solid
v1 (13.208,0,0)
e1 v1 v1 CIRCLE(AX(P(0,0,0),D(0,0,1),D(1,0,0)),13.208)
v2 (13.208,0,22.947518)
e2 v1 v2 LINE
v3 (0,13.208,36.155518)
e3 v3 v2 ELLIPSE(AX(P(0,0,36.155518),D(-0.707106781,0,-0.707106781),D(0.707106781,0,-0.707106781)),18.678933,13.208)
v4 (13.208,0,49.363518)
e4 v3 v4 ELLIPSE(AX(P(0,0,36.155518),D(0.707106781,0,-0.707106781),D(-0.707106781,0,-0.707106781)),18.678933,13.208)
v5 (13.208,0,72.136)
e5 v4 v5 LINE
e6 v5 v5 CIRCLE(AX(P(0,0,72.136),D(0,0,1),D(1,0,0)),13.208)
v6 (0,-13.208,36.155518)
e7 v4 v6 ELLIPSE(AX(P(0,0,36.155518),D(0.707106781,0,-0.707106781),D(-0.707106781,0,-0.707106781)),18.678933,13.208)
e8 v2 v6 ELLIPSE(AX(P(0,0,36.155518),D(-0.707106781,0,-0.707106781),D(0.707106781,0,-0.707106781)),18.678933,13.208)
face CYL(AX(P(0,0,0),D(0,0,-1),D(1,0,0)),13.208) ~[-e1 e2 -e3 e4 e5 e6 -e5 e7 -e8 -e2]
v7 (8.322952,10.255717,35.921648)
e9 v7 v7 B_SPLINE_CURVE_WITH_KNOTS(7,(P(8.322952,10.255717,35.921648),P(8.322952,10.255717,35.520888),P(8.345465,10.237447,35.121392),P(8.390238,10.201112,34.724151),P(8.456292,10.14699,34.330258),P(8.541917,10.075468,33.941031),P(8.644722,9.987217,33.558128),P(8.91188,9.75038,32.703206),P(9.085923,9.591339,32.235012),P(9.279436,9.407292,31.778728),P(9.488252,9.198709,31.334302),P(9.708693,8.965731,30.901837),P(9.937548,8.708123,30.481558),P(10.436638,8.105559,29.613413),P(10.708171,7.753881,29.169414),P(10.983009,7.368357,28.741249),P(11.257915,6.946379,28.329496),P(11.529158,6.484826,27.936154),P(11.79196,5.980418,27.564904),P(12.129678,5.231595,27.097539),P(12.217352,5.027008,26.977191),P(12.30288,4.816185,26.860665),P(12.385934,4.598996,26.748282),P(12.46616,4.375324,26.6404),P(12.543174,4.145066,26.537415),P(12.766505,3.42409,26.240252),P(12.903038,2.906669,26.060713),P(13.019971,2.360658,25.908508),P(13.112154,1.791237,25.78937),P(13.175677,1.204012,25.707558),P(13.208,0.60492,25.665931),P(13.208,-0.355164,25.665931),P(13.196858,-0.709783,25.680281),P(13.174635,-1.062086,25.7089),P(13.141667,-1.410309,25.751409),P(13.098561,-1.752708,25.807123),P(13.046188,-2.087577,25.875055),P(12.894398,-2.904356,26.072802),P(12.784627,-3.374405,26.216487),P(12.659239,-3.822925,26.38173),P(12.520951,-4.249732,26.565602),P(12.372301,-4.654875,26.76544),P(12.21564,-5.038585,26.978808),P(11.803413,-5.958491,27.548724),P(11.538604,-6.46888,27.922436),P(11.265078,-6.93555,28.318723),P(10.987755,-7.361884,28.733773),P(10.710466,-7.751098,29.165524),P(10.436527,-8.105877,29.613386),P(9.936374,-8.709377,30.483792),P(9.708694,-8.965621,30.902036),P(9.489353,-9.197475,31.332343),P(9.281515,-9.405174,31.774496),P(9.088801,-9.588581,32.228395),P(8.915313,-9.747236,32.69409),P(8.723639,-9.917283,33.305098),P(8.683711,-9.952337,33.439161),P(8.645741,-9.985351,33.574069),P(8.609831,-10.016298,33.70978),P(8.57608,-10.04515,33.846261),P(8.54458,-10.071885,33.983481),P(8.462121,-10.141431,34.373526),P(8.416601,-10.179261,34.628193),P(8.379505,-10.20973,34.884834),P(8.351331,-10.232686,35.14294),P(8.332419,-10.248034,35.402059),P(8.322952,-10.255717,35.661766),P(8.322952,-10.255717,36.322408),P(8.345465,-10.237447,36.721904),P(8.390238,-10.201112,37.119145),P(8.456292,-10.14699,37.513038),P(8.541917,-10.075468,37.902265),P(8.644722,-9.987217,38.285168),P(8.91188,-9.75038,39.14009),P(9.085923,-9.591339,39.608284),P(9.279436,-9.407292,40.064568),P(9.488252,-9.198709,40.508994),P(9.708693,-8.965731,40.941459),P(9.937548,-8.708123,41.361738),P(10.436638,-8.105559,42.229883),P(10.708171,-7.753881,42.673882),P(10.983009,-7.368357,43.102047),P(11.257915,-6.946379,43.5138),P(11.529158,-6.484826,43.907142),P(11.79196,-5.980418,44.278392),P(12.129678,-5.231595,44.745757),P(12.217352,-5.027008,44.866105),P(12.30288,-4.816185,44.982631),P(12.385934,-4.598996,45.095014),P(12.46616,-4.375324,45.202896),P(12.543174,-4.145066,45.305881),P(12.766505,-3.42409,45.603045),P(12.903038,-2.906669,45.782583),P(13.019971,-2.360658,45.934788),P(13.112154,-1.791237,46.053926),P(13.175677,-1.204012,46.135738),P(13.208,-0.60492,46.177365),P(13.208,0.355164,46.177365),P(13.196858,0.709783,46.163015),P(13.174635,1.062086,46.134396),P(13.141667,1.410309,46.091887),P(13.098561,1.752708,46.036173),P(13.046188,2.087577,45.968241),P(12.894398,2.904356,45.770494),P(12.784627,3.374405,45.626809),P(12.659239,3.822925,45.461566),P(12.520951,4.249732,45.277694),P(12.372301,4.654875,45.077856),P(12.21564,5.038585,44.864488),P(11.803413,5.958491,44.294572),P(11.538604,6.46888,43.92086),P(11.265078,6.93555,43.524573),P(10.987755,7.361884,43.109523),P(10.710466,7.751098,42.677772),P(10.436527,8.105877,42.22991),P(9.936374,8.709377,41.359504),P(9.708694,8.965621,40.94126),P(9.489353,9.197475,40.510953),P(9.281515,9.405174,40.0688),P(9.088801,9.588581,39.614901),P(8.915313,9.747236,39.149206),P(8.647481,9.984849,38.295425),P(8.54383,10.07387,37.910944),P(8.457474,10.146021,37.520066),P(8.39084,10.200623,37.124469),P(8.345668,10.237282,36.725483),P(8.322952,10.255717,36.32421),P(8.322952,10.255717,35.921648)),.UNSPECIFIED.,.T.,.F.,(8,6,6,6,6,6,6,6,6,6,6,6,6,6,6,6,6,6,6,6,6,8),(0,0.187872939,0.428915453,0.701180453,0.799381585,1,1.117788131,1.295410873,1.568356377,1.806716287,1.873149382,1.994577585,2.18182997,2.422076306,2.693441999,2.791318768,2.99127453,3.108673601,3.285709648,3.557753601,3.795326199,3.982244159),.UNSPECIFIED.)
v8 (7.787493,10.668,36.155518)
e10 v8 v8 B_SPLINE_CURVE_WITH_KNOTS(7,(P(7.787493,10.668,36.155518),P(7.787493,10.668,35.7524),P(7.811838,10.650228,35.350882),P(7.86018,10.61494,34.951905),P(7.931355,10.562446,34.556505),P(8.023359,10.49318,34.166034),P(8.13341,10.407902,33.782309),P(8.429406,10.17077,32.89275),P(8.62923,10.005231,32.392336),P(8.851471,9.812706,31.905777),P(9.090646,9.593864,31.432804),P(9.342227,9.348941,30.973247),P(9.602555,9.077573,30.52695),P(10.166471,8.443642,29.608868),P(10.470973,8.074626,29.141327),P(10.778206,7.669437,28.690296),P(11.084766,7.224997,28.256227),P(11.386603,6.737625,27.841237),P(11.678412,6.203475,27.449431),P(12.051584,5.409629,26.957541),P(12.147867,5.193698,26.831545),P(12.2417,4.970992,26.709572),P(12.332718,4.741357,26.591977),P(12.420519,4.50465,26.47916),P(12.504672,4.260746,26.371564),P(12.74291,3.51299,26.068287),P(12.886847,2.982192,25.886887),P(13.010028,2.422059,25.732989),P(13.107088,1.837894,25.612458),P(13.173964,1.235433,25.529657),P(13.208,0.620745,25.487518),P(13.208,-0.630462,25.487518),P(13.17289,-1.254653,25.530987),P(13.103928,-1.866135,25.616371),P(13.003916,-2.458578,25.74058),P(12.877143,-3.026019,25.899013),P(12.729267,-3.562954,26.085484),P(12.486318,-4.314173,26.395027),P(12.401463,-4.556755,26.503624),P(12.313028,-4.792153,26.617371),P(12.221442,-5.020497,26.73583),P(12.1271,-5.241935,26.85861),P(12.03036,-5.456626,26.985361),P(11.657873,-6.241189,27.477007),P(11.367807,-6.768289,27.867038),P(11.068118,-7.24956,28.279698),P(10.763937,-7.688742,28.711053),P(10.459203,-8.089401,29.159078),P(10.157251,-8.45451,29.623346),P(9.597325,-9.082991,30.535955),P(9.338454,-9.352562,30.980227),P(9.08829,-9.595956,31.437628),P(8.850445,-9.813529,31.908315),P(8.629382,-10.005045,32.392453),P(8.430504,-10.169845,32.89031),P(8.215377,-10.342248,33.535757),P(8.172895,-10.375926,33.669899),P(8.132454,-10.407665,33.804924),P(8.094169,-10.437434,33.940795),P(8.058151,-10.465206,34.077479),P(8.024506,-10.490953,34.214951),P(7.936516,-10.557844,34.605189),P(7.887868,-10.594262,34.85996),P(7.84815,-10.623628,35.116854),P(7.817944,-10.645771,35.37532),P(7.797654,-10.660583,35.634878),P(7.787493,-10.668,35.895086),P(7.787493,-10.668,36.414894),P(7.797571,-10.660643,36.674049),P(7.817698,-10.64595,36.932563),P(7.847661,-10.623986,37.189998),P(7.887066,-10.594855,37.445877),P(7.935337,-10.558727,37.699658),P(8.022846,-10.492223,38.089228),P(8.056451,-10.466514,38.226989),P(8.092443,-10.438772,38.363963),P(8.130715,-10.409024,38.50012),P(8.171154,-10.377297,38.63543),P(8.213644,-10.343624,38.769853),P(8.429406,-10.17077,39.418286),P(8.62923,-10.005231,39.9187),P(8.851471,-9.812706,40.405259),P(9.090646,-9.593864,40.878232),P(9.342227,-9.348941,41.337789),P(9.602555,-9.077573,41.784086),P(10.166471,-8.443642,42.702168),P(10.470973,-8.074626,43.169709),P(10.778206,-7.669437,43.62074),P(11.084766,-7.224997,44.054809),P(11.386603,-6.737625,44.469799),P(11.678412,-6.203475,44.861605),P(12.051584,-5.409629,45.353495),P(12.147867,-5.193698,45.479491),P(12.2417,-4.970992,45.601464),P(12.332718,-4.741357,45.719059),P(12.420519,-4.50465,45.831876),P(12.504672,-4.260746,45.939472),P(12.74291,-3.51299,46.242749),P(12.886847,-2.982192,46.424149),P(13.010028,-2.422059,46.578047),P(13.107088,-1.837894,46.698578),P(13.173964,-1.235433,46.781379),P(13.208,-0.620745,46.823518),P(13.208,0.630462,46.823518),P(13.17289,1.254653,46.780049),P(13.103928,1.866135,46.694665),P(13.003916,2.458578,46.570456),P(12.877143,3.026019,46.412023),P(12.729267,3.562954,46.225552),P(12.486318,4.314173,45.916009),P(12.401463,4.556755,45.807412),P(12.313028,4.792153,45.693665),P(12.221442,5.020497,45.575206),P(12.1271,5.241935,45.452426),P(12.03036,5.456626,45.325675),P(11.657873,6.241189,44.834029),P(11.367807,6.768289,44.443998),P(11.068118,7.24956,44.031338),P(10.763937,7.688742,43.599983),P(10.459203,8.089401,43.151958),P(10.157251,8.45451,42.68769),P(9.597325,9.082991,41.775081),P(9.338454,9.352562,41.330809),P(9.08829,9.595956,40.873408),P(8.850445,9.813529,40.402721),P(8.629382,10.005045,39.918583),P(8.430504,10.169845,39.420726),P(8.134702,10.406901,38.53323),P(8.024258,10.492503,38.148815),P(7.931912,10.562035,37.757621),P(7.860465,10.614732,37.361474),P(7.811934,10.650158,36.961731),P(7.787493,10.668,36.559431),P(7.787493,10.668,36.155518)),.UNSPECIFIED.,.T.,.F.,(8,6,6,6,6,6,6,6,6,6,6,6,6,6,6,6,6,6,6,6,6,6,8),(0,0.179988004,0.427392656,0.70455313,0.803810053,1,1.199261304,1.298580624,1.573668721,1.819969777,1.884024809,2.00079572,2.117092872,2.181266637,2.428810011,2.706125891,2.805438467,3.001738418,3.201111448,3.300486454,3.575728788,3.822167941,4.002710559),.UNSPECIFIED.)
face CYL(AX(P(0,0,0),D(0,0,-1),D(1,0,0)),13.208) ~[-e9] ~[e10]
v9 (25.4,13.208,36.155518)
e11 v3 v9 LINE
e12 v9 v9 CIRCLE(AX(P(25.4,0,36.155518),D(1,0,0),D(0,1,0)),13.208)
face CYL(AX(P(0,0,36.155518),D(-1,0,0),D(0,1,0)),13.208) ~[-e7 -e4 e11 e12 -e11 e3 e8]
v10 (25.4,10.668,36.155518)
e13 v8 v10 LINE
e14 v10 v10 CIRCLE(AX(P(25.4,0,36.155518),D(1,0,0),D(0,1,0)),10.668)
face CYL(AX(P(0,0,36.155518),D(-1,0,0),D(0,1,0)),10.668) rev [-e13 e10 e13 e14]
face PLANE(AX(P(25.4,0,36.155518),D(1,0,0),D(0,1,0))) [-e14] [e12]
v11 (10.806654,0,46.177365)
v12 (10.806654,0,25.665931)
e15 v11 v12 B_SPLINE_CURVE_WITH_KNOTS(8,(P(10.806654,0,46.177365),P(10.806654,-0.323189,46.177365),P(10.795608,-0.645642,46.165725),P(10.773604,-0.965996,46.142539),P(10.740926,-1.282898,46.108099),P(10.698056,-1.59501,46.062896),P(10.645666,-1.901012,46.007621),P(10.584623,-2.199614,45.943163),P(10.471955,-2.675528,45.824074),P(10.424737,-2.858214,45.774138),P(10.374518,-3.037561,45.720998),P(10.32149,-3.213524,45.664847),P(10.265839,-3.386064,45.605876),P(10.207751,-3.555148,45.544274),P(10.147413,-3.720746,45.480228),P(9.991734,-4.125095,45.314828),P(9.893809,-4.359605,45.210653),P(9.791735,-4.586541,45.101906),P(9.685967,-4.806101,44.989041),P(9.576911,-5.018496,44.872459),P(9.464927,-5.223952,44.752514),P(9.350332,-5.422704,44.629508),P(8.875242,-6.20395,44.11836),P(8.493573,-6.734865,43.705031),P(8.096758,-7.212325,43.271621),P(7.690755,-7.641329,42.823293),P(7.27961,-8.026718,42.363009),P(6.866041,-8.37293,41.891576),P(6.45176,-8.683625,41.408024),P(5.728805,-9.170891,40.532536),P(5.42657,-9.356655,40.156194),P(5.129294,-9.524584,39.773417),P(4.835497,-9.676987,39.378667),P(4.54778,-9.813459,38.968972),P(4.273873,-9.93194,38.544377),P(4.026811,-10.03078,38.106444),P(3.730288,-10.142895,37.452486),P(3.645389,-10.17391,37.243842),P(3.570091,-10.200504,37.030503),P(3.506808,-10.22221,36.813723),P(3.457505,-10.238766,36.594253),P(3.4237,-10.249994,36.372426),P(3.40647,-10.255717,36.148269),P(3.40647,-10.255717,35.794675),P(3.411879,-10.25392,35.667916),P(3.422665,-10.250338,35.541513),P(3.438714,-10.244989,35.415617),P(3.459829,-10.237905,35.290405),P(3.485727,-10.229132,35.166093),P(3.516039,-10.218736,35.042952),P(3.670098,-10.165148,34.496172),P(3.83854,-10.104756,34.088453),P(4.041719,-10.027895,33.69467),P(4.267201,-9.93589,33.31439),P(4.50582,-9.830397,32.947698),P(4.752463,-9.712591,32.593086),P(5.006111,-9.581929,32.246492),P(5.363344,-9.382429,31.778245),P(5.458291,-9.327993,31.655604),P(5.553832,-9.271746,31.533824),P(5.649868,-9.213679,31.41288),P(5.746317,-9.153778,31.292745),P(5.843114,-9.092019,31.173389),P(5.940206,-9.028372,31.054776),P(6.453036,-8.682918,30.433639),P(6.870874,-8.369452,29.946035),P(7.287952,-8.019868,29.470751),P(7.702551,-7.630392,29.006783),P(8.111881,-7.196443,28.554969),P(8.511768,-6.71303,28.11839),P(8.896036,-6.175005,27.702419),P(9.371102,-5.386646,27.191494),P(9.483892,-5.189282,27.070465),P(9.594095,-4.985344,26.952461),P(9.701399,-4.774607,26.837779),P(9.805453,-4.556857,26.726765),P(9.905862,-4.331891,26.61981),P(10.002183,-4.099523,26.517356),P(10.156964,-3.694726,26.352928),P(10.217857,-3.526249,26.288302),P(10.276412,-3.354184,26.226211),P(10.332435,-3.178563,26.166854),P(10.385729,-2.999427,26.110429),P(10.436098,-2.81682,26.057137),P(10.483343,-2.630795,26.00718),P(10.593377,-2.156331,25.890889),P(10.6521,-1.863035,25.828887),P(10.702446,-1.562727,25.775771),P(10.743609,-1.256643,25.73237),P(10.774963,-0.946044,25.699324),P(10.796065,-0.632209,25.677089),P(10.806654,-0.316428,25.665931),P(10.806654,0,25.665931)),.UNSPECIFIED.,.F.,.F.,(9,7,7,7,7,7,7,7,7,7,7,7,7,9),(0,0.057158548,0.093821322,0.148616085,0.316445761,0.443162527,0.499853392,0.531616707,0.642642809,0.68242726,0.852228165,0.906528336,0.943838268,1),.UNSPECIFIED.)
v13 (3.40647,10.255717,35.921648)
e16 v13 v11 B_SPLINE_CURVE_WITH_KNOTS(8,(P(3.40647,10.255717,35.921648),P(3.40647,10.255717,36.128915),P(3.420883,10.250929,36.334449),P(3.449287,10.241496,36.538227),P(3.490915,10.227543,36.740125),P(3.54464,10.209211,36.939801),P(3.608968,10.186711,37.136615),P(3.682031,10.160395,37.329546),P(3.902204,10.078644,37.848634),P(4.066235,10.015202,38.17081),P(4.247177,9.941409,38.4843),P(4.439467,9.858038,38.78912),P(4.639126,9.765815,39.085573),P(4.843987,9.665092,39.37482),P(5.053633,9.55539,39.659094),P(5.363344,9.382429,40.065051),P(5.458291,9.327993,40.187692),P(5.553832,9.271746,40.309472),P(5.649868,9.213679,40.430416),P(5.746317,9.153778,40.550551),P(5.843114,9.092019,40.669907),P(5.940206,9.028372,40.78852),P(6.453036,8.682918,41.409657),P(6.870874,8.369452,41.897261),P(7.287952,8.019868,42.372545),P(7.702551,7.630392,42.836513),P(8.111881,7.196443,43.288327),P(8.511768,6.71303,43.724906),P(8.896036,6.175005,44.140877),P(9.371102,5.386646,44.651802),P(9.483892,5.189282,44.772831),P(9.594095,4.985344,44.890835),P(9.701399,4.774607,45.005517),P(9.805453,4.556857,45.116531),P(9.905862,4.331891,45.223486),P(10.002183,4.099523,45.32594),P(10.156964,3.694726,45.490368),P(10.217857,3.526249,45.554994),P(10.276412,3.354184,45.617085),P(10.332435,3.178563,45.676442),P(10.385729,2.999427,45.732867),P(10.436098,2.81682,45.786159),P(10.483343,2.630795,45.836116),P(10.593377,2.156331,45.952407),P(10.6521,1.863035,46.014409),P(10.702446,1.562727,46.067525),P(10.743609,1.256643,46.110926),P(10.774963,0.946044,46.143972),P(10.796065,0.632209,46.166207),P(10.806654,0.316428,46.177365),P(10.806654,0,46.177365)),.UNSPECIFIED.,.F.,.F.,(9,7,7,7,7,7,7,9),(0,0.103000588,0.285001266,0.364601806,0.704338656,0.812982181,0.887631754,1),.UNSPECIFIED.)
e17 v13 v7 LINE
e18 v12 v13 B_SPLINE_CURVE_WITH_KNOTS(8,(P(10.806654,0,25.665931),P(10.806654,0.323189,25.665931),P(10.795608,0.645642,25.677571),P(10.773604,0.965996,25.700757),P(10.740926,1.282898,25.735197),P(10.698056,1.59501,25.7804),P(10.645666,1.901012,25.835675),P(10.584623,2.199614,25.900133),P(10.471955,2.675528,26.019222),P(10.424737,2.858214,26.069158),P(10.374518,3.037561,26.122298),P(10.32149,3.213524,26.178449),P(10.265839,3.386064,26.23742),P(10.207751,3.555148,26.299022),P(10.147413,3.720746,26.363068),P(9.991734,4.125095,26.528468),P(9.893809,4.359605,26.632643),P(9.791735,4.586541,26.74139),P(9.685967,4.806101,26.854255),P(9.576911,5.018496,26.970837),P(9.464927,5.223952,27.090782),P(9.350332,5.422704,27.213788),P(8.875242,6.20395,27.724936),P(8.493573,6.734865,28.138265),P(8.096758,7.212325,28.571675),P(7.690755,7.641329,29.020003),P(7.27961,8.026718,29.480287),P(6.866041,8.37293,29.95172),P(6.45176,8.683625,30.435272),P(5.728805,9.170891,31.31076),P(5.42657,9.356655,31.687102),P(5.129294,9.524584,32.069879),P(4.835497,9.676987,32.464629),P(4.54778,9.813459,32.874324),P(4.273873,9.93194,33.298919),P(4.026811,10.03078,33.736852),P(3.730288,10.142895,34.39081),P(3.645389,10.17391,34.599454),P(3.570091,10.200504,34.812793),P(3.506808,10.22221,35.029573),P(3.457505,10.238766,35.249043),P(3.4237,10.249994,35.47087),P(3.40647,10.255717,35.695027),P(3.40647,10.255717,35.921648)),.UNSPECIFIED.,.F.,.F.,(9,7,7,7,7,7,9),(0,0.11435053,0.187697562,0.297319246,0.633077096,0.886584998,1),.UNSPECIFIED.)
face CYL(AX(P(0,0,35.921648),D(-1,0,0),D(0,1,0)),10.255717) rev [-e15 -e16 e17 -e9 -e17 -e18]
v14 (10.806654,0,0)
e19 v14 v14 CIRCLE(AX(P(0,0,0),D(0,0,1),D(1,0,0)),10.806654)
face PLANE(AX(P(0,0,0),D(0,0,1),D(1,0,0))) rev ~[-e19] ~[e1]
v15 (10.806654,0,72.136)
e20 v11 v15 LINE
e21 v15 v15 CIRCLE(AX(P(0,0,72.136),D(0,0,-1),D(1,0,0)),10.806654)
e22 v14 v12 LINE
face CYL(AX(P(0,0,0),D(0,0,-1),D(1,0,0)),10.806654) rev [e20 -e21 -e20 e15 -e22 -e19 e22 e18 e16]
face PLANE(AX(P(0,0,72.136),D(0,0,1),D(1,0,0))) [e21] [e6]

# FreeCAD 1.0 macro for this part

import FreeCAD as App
import Part
import Sketcher
from FreeCAD import Vector
Q = App.Units.Quantity

doc = App.newDocument("Part")
body = doc.addObject("PartDesign::Body", "Body")

# Sketch on XY plane
sketch1 = body.newObject("Sketcher::SketchObject", "Sketch")
sketch1.AttachmentSupport = (doc.getObject("XY_Plane"), [""])
sketch1.MapMode = "FlatFace"
sketch1.addGeometry([
    Part.Circle(Vector(0, 0, 0), Vector(0, 0, 1), 13),
    Part.Circle(Vector(0, 0, 0), Vector(0, 0, 1), 11),
], False)
sketch1.addConstraint([
    Sketcher.Constraint("Coincident", 0, 3, -1, 1),
    Sketcher.Constraint("Coincident", 1, 3, -1, 1),
    Sketcher.Constraint("Diameter", 0, Q("1.04 in")),
    Sketcher.Constraint("Diameter", 1, Q("0.84 in")),
])
pad1 = body.newObject("PartDesign::Pad", "Pad")
pad1.Profile = sketch1
pad1.Length = Q("2.84 in")

# Sketch on YZ plane
sketch2 = body.newObject("Sketcher::SketchObject", "Sketch001")
sketch2.AttachmentSupport = (doc.getObject("YZ_Plane"), [""])
sketch2.MapMode = "FlatFace"
sketch2.addGeometry([
    Part.Circle(Vector(0, 36, 0), Vector(0, 0, 1), 13),
    Part.Circle(Vector(0, 36, 0), Vector(0, 0, 1), 11),
], False)
sketch2.addConstraint([
    Sketcher.Constraint("Coincident", 1, 3, 0, 3),
    Sketcher.Constraint("PointOnObject", 0, 3, -2),
    Sketcher.Constraint("Diameter", 0, Q("1.04 in")),
    Sketcher.Constraint("Diameter", 1, Q("0.84 in")),
    Sketcher.Constraint("DistanceY", -1, 1, 0, 3, Q("36.155518 mm")),
])
pad2 = body.newObject("PartDesign::Pad", "Pad001")
pad2.Profile = sketch2
pad2.Length = Q("1 in")

# Sketch on YZ plane
sketch3 = body.newObject("Sketcher::SketchObject", "Sketch002")
sketch3.AttachmentSupport = (doc.getObject("YZ_Plane"), [""])
sketch3.MapMode = "FlatFace"
sketch3.addGeometry(Part.Circle(Vector(0, 36, 0), Vector(0, 0, 1), 10), False)
sketch3.addConstraint([
    Sketcher.Constraint("PointOnObject", 0, 3, -2),
    Sketcher.Constraint("Diameter", 0, Q("20.511434 mm")),
    Sketcher.Constraint("DistanceY", -1, 1, 0, 3, Q("35.921648 mm")),
])
pocket1 = body.newObject("PartDesign::Pocket", "Pocket")
pocket1.Profile = sketch3
pocket1.Length = Q("1 in")
pocket1.Reversed = True

# Sketch on XY plane
sketch4 = body.newObject("Sketcher::SketchObject", "Sketch003")
sketch4.AttachmentSupport = (doc.getObject("XY_Plane"), [""])
sketch4.MapMode = "FlatFace"
sketch4.addGeometry(Part.Circle(Vector(0, 0, 0), Vector(0, 0, 1), 11), False)
sketch4.addConstraint([
    Sketcher.Constraint("Coincident", 0, 3, -1, 1),
    Sketcher.Constraint("Diameter", 0, Q("21.613308 mm")),
])
pocket2 = body.newObject("PartDesign::Pocket", "Pocket001")
pocket2.Profile = sketch4
pocket2.Length = Q("3 in")
pocket2.Reversed = True

doc.recompute()
